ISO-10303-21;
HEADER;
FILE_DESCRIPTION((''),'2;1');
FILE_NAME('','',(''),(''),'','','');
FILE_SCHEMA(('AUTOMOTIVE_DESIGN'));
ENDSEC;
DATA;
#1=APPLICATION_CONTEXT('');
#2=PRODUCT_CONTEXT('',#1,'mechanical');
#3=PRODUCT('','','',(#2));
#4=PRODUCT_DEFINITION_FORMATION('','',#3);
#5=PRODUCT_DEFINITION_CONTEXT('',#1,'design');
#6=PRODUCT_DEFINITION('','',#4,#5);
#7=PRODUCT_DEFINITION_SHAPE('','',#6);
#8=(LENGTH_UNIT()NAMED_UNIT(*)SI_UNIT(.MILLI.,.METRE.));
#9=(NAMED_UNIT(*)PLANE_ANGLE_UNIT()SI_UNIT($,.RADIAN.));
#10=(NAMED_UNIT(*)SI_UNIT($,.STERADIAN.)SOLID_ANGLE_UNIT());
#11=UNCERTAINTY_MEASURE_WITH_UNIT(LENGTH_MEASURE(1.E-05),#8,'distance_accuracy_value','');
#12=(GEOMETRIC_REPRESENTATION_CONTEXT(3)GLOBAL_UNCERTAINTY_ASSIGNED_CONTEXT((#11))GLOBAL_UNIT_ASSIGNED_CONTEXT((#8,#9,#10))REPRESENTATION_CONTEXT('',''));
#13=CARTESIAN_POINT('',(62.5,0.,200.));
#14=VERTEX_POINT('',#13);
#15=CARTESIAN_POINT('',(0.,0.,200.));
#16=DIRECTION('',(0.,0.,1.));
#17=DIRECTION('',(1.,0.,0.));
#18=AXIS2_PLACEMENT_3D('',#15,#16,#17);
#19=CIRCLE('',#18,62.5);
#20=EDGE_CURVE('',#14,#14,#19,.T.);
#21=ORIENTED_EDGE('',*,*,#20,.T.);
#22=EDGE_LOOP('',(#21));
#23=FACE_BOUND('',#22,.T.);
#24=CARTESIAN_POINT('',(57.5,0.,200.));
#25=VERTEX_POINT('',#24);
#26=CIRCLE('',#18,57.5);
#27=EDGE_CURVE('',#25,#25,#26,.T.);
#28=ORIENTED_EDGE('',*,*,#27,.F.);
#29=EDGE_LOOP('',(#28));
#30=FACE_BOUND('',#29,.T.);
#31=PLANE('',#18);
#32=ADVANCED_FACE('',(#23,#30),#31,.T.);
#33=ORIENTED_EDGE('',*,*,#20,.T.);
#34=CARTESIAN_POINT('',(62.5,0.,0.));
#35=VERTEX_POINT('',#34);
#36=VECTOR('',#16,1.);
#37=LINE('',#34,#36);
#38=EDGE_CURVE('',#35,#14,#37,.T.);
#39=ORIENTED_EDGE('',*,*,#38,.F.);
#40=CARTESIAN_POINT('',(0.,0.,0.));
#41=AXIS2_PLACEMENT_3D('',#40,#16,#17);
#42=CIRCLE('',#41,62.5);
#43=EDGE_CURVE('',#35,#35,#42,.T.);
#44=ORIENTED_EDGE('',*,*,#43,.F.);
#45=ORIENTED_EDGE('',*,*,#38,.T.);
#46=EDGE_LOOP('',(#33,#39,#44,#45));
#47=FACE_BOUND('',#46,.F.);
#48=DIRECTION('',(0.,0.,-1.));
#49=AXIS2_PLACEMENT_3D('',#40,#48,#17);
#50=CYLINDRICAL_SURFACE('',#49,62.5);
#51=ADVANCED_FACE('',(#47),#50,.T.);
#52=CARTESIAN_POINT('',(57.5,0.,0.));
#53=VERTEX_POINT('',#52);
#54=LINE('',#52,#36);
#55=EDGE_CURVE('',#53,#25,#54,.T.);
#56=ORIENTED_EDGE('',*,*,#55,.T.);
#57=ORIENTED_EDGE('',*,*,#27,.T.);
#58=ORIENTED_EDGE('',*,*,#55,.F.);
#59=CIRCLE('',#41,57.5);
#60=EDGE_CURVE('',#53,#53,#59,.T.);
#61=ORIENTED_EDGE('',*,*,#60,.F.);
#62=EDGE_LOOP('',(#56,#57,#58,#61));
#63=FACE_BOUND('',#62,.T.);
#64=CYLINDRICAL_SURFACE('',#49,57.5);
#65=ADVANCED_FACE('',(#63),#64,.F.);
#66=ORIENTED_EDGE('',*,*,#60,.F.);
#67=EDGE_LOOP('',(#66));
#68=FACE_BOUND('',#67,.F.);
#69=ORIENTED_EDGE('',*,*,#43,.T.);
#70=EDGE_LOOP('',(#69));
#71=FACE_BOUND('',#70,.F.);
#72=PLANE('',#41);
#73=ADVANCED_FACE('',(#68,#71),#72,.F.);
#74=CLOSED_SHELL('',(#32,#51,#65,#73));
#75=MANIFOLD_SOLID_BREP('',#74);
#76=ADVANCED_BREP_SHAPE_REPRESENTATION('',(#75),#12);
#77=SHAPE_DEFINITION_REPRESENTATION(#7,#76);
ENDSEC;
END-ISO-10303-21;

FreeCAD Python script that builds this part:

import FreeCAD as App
import Part
import Sketcher
from FreeCAD import Vector
Q = App.Units.Quantity

doc = App.newDocument("Part")
body = doc.addObject("PartDesign::Body", "Body")

# Sketch on XY plane
sketch1 = body.newObject("Sketcher::SketchObject", "Sketch")
sketch1.AttachmentSupport = (doc.getObject("XY_Plane"), [""])
sketch1.MapMode = "FlatFace"
sketch1.addGeometry([
    Part.Circle(Vector(0, 0, 0), Vector(0, 0, 1), 62),
    Part.Circle(Vector(0, 0, 0), Vector(0, 0, 1), 58),
], False)
sketch1.addConstraint([
    Sketcher.Constraint("Coincident", 0, 3, -1, 1),
    Sketcher.Constraint("Coincident", 1, 3, -1, 1),
    Sketcher.Constraint("Diameter", 0, Q("125 mm")),
    Sketcher.Constraint("Diameter", 1, Q("115 mm")),
])
pad1 = body.newObject("PartDesign::Pad", "Pad")
pad1.Profile = sketch1
pad1.Length = 200

doc.recompute()
